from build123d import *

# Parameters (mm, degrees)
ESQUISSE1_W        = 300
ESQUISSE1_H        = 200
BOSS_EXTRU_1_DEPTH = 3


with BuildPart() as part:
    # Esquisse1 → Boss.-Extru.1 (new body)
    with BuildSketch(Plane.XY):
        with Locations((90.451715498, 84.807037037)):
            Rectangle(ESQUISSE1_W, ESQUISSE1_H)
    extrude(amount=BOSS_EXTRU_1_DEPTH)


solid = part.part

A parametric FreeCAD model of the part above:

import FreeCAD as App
import Part
import Sketcher
Q = App.Units.Quantity

doc = App.newDocument("Part")
body = doc.addObject("PartDesign::Body", "Body")

sketch1 = body.newObject("Sketcher::SketchObject", "Sketch")
sketch1.AttachmentSupport = (doc.getObject("XY_Plane"), [""])
sketch1.MapMode = "FlatFace"
sketch1.addGeometry([
    Part.LineSegment(App.Vector(-60, 185, 0), App.Vector(-60, -15, 0)),
    Part.LineSegment(App.Vector(-60, -15, 0), App.Vector(240, -15, 0)),
    Part.LineSegment(App.Vector(240, -15, 0), App.Vector(240, 185, 0)),
    Part.LineSegment(App.Vector(240, 185, 0), App.Vector(-60, 185, 0)),
], False)
sketch1.addConstraint([
    Sketcher.Constraint("Coincident", 0, 2, 1, 1),
    Sketcher.Constraint("Coincident", 1, 2, 2, 1),
    Sketcher.Constraint("Coincident", 2, 2, 3, 1),
    Sketcher.Constraint("Coincident", 3, 2, 0, 1),
    Sketcher.Constraint("Vertical", 0),
    Sketcher.Constraint("Horizontal", 1),
    Sketcher.Constraint("Vertical", 2),
    Sketcher.Constraint("Horizontal", 3),
    Sketcher.Constraint("DistanceX", 1, 1, 1, 2, Q("300 mm")),
    Sketcher.Constraint("DistanceY", 0, 2, 0, 1, Q("200 mm")),
    Sketcher.Constraint("DistanceX", 0, 2, -1, 1, Q("59.548285 mm")),
    Sketcher.Constraint("DistanceY", 0, 2, -1, 1, Q("15.192963 mm")),
])
pad1 = body.newObject("PartDesign::Pad", "Pad")
pad1.Profile = sketch1
pad1.Length = 3

doc.recompute()
